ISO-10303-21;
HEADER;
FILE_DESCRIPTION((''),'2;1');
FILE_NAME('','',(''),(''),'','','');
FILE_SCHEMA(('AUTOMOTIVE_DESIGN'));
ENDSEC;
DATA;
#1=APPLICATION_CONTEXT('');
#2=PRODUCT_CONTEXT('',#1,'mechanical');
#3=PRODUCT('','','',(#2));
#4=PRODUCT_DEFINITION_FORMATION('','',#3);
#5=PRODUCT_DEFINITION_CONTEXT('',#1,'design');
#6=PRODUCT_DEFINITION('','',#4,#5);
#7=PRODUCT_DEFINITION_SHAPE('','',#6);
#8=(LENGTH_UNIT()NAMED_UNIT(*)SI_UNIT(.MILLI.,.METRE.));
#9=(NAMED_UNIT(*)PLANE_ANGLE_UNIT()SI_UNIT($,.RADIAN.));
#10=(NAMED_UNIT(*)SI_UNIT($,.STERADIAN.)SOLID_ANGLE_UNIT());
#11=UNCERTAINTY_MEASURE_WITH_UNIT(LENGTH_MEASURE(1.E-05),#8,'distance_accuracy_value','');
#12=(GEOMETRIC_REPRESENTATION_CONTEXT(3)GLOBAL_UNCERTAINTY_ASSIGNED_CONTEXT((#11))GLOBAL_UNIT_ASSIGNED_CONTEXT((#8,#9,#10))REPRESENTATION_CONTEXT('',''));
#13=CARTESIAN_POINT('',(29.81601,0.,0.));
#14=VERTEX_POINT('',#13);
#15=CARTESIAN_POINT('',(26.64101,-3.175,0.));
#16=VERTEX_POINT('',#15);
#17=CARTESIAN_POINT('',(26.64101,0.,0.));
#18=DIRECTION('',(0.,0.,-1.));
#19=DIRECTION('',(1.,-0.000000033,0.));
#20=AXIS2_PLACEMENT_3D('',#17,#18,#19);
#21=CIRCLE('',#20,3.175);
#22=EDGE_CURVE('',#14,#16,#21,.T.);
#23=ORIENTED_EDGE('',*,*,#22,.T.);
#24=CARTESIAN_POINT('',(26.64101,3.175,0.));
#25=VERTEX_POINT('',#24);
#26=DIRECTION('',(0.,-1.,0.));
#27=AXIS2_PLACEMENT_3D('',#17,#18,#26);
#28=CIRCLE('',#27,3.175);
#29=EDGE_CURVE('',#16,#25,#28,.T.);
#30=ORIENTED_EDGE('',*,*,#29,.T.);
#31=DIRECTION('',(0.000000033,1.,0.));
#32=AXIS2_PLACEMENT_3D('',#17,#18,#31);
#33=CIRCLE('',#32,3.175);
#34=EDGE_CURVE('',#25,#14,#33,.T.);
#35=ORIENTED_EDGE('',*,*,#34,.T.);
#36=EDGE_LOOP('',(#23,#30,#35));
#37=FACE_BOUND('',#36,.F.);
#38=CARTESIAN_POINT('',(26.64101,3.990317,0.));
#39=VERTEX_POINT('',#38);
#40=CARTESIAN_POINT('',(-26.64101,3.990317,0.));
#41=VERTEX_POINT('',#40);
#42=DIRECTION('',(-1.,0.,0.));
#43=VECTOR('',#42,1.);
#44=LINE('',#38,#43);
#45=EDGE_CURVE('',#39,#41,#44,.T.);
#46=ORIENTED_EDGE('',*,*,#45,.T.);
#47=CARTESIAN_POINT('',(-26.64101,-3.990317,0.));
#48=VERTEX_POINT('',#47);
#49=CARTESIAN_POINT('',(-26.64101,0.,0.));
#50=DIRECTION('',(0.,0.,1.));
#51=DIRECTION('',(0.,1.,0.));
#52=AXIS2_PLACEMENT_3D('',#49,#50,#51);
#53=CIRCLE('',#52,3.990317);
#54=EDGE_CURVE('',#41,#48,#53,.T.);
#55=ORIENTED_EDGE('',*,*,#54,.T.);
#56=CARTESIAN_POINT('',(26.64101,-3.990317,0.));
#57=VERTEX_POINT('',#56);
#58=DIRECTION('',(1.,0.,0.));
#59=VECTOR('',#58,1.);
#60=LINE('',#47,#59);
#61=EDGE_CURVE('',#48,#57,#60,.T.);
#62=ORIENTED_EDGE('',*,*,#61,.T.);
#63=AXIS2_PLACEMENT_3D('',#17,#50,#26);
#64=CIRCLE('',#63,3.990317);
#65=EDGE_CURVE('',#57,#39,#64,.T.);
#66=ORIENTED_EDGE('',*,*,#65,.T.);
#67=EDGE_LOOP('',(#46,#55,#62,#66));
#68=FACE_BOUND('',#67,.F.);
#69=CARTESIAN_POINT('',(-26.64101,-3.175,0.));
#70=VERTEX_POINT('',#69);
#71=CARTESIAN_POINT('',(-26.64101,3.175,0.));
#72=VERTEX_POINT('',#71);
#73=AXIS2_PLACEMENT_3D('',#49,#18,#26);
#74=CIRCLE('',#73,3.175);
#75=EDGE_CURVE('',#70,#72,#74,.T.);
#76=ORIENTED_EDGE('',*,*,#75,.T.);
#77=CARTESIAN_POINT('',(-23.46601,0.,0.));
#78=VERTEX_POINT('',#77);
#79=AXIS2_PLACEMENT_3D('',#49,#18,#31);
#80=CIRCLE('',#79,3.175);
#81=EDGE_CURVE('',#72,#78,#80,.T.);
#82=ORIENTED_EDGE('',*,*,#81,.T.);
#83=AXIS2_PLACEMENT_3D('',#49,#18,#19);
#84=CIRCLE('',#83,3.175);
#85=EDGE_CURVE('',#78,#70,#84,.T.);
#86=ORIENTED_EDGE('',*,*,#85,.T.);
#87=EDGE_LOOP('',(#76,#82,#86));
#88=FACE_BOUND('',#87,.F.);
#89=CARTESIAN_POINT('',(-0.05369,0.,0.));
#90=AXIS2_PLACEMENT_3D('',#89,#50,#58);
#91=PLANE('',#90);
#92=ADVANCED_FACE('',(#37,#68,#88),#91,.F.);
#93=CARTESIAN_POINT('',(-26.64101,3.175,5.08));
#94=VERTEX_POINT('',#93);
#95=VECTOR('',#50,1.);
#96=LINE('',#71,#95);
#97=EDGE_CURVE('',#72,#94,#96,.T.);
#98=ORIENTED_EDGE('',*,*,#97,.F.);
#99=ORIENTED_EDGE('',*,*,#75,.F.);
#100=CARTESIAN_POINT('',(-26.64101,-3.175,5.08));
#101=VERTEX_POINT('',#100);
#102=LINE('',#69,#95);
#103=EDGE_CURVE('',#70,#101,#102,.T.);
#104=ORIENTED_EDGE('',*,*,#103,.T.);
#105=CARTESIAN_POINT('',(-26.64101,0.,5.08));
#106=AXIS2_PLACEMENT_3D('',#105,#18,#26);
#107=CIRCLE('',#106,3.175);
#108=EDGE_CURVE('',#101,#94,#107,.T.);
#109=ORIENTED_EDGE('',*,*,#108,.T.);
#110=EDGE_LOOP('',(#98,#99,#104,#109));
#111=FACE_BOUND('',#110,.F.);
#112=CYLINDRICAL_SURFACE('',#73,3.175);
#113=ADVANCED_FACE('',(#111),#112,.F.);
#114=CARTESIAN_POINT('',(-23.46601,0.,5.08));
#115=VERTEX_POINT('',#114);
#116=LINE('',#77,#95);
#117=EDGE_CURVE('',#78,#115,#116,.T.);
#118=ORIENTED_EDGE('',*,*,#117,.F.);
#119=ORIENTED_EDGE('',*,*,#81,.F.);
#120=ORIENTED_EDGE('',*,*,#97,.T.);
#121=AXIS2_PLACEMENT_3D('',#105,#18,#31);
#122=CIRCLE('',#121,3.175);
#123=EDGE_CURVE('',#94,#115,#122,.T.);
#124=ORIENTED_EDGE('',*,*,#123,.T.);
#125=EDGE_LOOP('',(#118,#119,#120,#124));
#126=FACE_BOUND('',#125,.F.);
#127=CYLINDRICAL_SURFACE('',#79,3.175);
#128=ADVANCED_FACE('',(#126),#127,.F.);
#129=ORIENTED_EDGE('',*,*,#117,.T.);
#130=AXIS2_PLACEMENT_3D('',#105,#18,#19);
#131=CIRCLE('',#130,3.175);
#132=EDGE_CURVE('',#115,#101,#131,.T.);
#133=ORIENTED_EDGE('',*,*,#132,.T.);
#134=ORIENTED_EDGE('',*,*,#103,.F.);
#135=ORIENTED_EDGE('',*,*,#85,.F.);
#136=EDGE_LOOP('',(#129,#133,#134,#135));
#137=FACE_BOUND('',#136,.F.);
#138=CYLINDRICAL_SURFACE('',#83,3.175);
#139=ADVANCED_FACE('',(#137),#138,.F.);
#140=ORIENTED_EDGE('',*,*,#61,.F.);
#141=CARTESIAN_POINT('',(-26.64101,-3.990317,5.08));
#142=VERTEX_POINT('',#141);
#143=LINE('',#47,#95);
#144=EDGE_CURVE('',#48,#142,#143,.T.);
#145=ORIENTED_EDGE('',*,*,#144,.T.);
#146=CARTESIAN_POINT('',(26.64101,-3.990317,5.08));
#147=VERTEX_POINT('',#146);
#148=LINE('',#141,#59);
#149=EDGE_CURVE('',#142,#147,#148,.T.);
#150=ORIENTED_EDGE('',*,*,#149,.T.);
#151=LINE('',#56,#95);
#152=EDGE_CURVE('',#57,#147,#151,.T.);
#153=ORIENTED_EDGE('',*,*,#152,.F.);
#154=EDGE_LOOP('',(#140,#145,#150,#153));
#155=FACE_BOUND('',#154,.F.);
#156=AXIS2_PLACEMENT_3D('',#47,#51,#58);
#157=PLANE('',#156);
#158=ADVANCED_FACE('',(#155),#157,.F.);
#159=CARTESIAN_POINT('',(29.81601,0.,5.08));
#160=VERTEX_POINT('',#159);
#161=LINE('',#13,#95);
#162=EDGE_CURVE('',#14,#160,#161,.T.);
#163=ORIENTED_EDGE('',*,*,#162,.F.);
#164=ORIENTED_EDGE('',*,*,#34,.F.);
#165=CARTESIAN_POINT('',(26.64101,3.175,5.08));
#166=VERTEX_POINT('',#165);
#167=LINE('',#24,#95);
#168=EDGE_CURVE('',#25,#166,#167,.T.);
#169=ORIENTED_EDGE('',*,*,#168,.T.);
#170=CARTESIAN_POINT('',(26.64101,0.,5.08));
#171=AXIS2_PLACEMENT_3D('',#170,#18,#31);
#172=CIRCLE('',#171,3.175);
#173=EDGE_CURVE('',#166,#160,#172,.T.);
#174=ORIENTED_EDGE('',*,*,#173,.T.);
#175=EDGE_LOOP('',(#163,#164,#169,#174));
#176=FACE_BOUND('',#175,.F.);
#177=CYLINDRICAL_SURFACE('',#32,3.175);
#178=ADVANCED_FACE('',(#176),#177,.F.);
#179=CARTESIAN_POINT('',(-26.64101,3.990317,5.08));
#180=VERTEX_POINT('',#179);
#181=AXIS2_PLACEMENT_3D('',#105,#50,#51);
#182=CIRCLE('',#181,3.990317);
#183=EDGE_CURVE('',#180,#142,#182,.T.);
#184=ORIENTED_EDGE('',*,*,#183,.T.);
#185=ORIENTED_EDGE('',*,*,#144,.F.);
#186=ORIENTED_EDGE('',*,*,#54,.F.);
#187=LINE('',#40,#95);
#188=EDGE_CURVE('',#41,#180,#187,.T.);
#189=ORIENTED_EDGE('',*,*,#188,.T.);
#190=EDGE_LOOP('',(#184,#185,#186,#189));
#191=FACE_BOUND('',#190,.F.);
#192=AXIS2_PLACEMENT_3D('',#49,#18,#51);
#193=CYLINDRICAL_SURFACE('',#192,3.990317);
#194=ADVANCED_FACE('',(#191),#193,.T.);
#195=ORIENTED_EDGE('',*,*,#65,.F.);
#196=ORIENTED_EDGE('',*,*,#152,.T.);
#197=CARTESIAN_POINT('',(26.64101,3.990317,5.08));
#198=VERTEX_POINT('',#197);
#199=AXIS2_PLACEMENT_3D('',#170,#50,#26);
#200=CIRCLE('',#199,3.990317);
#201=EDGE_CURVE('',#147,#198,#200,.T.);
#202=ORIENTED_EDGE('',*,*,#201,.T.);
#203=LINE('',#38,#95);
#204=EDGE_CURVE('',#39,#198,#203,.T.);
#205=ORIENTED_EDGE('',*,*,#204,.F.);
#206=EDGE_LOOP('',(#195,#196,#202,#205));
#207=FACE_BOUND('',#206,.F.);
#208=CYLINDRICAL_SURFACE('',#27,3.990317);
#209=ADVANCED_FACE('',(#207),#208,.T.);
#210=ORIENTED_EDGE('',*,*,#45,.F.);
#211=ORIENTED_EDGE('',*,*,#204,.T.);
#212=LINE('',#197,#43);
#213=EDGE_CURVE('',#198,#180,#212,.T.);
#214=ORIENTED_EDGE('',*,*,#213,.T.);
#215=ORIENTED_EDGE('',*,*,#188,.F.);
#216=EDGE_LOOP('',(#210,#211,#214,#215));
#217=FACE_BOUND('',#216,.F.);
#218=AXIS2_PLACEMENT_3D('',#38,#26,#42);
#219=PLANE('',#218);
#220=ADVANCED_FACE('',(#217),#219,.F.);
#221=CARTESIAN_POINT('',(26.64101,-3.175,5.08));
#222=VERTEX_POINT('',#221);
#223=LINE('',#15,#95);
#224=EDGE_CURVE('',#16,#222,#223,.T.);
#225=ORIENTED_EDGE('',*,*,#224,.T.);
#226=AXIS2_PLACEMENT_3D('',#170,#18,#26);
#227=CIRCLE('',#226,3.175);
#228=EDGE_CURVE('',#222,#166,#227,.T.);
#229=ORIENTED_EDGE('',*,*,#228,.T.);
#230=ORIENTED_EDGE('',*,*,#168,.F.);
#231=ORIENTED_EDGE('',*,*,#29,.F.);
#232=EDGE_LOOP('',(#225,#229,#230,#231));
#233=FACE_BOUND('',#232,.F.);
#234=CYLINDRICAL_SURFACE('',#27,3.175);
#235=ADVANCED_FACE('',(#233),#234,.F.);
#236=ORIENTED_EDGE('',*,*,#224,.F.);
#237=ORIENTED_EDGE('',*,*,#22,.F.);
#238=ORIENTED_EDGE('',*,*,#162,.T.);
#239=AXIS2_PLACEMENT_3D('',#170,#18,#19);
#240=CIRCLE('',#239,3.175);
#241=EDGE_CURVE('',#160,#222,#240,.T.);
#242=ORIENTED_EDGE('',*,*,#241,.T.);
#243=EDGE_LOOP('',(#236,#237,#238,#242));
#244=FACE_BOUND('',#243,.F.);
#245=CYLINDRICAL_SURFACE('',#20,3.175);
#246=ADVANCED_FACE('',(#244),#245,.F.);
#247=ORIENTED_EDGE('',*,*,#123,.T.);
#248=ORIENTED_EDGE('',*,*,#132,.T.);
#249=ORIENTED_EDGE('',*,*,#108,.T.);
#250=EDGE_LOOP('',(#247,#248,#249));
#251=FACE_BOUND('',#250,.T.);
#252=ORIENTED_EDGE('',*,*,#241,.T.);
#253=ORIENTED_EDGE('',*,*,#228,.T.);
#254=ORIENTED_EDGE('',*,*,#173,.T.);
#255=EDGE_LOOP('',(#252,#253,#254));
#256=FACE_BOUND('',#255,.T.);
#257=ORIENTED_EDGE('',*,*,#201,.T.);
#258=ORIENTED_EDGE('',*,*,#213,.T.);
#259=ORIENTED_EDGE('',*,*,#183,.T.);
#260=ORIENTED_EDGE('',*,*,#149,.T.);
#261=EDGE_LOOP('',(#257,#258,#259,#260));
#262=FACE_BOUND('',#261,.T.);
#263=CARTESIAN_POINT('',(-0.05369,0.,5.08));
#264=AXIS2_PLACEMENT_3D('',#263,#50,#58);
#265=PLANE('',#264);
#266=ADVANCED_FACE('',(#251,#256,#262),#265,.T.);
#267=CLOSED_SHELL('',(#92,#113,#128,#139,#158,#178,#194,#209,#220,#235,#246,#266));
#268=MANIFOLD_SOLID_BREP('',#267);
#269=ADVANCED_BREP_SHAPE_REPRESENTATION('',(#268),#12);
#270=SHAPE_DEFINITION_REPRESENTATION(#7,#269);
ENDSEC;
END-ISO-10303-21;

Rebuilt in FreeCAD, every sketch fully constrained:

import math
import FreeCAD as App
import Part
import Sketcher

V = App.Vector
Q = App.Units.Quantity

doc = App.newDocument("Part")
body = doc.addObject("PartDesign::Body", "Body")

sketch1 = body.newObject("Sketcher::SketchObject", "Sketch")
sketch1.AttachmentSupport = (doc.getObject("XY_Plane"), [""])
sketch1.MapMode = "FlatFace"
sketch1.addGeometry([
    Part.LineSegment(V(-26.6, -4, 0), V(26.6, -4, 0)),
    Part.ArcOfCircle(Part.Circle(V(26.6, 0, 0), V(0, 0, 1), 4), math.radians(-90), math.radians(90)),
    Part.LineSegment(V(26.6, 4, 0), V(-26.6, 4, 0)),
    Part.ArcOfCircle(Part.Circle(V(-26.6, 0, 0), V(0, 0, 1), 4), math.radians(90), math.radians(270)),
    Part.ArcOfCircle(Part.Circle(V(-26.6, 0, 0), V(0, 0, 1), 3.2), math.radians(0), math.radians(90)),
    Part.ArcOfCircle(Part.Circle(V(-26.6, 0, 0), V(0, 0, 1), 3.2), math.radians(-90), math.radians(0)),
    Part.ArcOfCircle(Part.Circle(V(-26.6, 0, 0), V(0, 0, 1), 3.2), math.radians(90), math.radians(270)),
    Part.ArcOfCircle(Part.Circle(V(26.6, 0, 0), V(0, 0, 1), 3.2), math.radians(90), math.radians(270)),
    Part.ArcOfCircle(Part.Circle(V(26.6, 0, 0), V(0, 0, 1), 3.2), math.radians(0), math.radians(90)),
    Part.ArcOfCircle(Part.Circle(V(26.6, 0, 0), V(0, 0, 1), 3.2), math.radians(-90), math.radians(0)),
], False)
sketch1.addConstraint([
    Sketcher.Constraint("Tangent", 0, 2, 1, 1),
    Sketcher.Constraint("Tangent", 1, 2, 2, 1),
    Sketcher.Constraint("Tangent", 2, 2, 3, 1),
    Sketcher.Constraint("Tangent", 3, 2, 0, 1),
    Sketcher.Constraint("Tangent", 4, 1, 5, 2),
    Sketcher.Constraint("Tangent", 5, 1, 6, 2),
    Sketcher.Constraint("Tangent", 6, 1, 4, 2),
    Sketcher.Constraint("Tangent", 7, 1, 8, 2),
    Sketcher.Constraint("Tangent", 8, 1, 9, 2),
    Sketcher.Constraint("Tangent", 9, 1, 7, 2),
    Sketcher.Constraint("Horizontal", 0),
    Sketcher.Constraint("Horizontal", 2),
    Sketcher.Constraint("Coincident", 4, 3, 3, 3),
    Sketcher.Constraint("Coincident", 7, 3, 1, 3),
    Sketcher.Constraint("Equal", 6, 7),
    Sketcher.Constraint("Symmetric", 1, 3, 3, 3, -1, 1),
    Sketcher.Constraint("PointOnObject", 4, 1, -1),
    Sketcher.Constraint("PointOnObject", 8, 1, -1),
    Sketcher.Constraint("Vertical", 3, 2, 5, 1),
    Sketcher.Constraint("Vertical", 5, 1, 6, 1),
    Sketcher.Constraint("Vertical", 1, 2, 7, 1),
    Sketcher.Constraint("Vertical", 7, 1, 9, 1),
    Sketcher.Constraint("Radius", 4, Q("0.125 in")),
    Sketcher.Constraint("Radius", 1, 3.990317),
    Sketcher.Constraint("DistanceX", 0, 1, 0, 2, 53.28202),
])
pad1 = body.newObject("PartDesign::Pad", "Pad")
pad1.Profile = sketch1
pad1.Length = Q("0.2 in")

doc.recompute()
